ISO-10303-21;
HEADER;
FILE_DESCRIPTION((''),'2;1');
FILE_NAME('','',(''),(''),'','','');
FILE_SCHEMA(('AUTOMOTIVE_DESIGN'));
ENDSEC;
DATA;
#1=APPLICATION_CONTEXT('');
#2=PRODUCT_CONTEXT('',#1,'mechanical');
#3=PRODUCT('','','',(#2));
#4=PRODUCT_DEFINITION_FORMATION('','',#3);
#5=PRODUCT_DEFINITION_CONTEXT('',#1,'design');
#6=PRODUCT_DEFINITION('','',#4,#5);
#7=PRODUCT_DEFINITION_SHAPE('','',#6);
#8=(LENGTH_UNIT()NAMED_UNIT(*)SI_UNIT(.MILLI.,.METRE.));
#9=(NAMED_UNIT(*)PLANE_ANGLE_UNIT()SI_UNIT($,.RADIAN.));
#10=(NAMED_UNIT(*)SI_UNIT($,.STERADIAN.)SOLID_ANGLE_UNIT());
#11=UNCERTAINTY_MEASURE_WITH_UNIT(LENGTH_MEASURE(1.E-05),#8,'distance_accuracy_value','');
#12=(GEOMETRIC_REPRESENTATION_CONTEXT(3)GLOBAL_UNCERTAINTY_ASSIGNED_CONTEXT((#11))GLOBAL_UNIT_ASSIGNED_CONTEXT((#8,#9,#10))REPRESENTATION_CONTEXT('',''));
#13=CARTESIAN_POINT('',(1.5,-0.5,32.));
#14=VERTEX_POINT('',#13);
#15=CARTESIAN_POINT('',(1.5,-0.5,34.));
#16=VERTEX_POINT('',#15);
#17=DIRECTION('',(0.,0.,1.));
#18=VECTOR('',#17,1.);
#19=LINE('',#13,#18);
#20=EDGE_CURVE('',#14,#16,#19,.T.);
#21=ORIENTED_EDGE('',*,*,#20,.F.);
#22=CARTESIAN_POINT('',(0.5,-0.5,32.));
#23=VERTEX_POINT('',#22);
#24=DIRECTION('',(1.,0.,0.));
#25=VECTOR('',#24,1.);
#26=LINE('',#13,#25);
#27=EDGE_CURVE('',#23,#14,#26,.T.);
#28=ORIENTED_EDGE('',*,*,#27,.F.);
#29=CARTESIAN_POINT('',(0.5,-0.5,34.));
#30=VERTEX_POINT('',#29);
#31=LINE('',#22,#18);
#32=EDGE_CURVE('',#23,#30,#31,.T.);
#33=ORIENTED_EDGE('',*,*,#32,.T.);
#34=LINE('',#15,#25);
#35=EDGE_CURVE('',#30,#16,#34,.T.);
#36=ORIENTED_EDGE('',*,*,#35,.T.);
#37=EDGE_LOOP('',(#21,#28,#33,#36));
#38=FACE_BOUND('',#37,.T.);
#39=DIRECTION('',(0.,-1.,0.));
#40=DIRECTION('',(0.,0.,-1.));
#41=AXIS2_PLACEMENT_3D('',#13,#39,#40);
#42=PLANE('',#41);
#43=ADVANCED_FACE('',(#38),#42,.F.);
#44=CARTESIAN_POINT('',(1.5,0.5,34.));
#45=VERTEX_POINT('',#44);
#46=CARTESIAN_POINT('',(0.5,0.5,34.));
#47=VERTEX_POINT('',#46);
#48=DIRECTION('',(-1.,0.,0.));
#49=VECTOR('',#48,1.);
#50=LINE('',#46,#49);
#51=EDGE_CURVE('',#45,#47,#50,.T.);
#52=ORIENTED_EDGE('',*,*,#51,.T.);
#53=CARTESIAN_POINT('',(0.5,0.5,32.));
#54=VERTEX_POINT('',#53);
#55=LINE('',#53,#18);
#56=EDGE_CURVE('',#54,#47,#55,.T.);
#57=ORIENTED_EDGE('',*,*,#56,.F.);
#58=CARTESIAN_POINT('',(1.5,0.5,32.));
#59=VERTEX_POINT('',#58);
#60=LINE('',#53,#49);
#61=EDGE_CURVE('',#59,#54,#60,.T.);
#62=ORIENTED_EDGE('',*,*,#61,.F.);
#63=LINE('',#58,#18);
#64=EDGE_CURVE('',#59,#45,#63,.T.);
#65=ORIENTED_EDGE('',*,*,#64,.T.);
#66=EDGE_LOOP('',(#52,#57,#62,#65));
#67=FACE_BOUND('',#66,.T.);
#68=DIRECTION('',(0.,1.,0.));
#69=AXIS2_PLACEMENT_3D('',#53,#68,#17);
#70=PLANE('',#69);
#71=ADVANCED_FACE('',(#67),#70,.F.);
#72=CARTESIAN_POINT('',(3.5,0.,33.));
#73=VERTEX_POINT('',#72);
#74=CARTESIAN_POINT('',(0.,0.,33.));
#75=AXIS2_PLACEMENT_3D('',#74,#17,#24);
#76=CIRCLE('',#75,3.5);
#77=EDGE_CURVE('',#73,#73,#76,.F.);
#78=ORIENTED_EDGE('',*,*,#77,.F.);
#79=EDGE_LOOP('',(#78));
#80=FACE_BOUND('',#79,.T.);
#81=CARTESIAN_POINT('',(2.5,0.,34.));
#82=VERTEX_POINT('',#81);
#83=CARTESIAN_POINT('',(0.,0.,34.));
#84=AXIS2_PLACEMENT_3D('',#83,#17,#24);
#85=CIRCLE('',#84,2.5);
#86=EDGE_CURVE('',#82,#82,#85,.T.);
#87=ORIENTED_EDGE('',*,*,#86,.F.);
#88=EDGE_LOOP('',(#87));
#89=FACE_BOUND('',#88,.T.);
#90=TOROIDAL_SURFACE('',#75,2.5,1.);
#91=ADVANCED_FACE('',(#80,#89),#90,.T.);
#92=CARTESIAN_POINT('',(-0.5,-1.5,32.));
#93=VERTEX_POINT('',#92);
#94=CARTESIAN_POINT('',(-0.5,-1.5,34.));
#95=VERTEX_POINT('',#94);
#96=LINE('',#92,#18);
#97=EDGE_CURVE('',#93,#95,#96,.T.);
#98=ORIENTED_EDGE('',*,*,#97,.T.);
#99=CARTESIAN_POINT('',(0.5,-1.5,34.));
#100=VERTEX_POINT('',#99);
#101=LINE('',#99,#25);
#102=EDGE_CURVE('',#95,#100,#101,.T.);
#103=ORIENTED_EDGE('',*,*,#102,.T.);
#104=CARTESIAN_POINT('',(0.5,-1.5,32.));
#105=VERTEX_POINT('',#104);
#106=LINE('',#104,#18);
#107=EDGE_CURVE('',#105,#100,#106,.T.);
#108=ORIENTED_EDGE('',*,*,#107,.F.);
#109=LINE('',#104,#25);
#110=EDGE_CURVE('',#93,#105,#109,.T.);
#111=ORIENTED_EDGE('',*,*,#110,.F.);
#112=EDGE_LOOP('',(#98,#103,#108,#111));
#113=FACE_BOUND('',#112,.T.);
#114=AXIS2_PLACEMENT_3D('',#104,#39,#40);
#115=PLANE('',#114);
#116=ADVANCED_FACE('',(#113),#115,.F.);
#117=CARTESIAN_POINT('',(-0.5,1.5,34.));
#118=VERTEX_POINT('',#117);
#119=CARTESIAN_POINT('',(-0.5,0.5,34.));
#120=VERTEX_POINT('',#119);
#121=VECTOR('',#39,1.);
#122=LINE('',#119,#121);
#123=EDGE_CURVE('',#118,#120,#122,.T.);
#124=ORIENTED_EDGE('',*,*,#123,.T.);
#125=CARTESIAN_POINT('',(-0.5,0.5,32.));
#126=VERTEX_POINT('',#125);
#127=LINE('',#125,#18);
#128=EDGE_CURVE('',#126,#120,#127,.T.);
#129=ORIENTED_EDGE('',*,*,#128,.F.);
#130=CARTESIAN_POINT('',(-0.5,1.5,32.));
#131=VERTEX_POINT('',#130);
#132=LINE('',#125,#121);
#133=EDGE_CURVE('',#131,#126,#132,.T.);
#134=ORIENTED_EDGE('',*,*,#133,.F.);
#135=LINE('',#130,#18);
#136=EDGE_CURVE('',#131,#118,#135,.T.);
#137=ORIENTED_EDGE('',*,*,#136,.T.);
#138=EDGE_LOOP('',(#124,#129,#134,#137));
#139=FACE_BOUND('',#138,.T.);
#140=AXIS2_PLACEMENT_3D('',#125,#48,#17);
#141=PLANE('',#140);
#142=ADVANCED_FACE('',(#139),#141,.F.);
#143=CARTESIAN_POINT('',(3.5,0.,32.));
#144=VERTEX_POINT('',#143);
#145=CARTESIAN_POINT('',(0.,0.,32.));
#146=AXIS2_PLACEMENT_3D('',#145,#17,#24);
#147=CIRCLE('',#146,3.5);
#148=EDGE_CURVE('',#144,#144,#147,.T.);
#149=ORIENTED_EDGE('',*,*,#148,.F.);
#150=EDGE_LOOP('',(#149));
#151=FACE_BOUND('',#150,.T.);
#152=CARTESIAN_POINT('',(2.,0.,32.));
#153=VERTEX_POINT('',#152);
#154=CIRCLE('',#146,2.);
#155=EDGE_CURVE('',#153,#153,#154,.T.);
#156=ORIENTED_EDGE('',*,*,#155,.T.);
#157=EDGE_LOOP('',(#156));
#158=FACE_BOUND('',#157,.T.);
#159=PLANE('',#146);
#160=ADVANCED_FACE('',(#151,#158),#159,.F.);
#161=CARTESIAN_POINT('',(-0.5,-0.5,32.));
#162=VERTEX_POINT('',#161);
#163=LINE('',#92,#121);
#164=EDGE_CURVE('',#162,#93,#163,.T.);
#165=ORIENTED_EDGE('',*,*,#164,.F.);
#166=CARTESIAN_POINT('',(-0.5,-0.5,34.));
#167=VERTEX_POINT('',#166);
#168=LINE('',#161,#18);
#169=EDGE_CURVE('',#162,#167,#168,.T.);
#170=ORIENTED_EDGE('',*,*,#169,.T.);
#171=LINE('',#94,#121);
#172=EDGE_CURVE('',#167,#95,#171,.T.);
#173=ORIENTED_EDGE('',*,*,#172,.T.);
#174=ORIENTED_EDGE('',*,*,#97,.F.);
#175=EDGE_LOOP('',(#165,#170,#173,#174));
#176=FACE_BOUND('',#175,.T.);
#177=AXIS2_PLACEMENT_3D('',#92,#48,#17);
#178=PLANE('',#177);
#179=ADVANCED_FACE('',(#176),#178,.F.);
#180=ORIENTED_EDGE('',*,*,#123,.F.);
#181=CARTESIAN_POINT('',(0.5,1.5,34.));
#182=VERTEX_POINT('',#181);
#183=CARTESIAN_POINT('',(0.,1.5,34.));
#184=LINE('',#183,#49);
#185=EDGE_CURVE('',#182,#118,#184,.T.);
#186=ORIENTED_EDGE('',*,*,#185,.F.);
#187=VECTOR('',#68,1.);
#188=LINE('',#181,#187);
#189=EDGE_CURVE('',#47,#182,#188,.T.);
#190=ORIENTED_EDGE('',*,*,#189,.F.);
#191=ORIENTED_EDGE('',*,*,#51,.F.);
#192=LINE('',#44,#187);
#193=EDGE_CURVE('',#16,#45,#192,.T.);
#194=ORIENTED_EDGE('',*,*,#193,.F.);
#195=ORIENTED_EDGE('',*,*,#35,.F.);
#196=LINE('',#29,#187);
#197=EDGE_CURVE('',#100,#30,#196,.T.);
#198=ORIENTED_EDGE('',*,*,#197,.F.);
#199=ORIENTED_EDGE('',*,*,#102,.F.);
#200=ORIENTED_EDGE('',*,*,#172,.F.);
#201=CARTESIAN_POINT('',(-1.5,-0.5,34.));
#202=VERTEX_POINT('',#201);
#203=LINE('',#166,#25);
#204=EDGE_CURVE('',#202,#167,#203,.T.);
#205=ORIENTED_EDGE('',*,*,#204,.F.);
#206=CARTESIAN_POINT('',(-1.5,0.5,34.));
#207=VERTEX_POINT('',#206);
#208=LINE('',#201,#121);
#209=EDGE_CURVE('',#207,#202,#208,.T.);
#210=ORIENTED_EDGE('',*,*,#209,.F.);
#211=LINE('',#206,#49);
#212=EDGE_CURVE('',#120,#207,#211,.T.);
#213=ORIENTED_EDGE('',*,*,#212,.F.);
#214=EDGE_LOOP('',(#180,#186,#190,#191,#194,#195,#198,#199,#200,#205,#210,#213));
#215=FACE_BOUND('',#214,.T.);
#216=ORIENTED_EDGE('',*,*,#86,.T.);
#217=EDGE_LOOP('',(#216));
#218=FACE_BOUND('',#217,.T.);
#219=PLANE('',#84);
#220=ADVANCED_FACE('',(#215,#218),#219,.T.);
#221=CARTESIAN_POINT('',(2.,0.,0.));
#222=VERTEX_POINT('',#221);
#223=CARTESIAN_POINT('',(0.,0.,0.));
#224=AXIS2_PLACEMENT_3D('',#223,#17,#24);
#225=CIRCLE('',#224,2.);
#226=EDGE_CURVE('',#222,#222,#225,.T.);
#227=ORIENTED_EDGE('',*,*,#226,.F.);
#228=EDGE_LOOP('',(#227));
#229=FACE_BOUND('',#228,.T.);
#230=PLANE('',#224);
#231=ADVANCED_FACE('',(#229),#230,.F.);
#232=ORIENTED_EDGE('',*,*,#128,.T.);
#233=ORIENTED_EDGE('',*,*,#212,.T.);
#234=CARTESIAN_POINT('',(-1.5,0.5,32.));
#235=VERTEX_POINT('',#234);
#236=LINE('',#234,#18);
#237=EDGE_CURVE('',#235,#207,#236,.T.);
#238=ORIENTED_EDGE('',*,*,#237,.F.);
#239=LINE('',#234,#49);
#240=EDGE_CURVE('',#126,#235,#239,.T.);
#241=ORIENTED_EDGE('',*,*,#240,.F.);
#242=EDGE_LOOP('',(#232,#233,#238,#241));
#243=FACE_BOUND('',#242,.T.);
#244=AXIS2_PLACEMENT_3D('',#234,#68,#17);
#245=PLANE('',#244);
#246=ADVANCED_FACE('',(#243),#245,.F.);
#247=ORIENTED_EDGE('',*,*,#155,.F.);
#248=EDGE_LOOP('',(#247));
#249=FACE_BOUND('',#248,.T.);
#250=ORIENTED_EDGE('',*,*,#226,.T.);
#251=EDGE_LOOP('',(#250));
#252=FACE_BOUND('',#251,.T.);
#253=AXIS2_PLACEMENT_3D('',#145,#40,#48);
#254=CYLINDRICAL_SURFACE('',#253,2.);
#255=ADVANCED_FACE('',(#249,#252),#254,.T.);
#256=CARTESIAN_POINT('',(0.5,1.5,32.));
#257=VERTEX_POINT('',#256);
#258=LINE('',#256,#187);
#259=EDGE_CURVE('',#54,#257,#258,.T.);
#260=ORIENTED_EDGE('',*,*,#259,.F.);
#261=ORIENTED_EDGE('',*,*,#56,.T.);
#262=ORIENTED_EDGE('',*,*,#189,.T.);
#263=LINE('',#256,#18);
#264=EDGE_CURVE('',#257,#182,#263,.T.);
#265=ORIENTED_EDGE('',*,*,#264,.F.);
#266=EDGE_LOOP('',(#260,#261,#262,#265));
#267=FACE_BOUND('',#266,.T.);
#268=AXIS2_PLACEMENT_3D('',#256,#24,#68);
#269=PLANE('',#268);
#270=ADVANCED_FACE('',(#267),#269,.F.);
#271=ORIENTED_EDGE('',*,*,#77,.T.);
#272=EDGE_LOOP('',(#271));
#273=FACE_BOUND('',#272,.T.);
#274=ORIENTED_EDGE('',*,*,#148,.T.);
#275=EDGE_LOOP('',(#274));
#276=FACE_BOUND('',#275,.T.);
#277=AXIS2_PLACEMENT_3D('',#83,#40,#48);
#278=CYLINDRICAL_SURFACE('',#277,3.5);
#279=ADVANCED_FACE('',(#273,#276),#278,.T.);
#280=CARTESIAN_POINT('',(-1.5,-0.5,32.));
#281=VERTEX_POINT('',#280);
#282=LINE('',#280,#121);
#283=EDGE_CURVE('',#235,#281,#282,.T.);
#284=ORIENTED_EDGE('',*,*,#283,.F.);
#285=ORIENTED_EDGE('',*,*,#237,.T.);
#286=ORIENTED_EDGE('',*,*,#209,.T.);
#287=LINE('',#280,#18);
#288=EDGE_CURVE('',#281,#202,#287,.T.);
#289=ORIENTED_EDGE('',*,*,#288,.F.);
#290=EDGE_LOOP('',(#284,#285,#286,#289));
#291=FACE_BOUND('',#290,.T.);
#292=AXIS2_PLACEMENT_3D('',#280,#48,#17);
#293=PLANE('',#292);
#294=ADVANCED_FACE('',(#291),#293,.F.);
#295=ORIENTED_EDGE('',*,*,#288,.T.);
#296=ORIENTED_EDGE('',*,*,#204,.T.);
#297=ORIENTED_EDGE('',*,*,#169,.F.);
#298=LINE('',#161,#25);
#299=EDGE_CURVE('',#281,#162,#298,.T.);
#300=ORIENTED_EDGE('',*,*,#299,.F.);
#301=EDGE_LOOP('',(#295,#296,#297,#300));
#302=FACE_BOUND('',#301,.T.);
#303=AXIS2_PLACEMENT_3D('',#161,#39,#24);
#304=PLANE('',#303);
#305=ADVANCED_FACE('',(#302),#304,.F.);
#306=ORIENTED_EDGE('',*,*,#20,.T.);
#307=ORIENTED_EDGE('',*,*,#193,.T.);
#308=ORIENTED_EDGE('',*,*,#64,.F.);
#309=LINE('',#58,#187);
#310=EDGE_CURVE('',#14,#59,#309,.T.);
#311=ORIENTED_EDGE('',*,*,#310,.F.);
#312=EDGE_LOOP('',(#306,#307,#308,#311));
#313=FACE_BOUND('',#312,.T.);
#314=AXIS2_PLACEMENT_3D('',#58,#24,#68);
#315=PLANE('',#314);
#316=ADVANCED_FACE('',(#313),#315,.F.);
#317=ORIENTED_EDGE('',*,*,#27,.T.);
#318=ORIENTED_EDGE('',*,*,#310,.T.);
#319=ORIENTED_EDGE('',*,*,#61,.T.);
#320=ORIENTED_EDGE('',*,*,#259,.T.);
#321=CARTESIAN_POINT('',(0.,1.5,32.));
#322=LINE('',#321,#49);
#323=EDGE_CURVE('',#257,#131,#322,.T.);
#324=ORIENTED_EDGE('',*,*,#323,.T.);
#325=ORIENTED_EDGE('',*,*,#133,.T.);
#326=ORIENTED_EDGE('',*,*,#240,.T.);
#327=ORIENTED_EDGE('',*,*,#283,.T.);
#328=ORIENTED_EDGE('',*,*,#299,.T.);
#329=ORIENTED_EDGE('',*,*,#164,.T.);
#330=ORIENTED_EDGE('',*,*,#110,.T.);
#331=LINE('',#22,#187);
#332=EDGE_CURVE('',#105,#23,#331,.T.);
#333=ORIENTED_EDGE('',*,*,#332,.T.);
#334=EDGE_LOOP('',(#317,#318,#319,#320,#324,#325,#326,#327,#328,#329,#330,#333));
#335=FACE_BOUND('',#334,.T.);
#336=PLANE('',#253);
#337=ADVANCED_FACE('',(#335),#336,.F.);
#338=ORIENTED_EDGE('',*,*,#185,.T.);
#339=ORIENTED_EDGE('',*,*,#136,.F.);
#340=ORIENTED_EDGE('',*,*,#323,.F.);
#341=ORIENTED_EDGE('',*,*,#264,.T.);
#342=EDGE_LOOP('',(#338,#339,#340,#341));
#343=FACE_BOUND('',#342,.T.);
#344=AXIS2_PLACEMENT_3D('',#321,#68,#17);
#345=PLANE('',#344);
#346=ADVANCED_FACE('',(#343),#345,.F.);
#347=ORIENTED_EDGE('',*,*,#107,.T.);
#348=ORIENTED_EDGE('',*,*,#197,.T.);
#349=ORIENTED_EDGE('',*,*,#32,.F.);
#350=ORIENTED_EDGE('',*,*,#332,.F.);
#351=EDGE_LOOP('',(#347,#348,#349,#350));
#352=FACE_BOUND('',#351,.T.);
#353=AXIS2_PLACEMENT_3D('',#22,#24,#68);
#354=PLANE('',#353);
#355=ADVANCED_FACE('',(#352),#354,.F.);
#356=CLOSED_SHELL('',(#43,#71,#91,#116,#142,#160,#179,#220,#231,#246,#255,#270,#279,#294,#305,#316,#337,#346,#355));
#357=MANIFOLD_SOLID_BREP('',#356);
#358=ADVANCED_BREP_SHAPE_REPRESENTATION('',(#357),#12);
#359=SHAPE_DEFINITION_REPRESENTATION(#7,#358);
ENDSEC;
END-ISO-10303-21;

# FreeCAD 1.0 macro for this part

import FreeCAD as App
import Part
import Sketcher
Q = App.Units.Quantity


def edges_at(feature, points):
    """Names of the edges that pass closest to the given points."""
    edges = feature.Shape.Edges
    near = lambda p: min(range(len(edges)), key=lambda i: edges[i].distToShape(Part.Vertex(*p))[0])
    return sorted({f"Edge{near(p) + 1}" for p in points})


def add_polygon(sketch, points):
    """Adds a closed chain of lines whose ends are joined by coincident constraints."""
    first, n = sketch.GeometryCount, len(points)
    for a, b in zip(points, points[1:] + points[:1]):
        sketch.addGeometry(Part.LineSegment(App.Vector(*a, 0), App.Vector(*b, 0)), False)
    for i in range(n):
        sketch.addConstraint(Sketcher.Constraint("Coincident", first + i, 2, first + (i + 1) % n, 1))

doc = App.newDocument("Part")
body = doc.addObject("PartDesign::Body", "Body")

# Sketch on XY plane
sketch1 = body.newObject("Sketcher::SketchObject", "Sketch")
sketch1.AttachmentSupport = (doc.getObject("XY_Plane"), [""])
sketch1.MapMode = "FlatFace"
sketch1.addGeometry(Part.Circle(App.Vector(0, 0, 0), App.Vector(0, 0, 1), 2), False)
sketch1.addConstraint([
    Sketcher.Constraint("Coincident", 0, 3, -1, 1),
    Sketcher.Constraint("Diameter", 0, Q("4 mm")),
])
pad1 = body.newObject("PartDesign::Pad", "Pad")
pad1.Profile = sketch1
pad1.Length = 32

# Sketch on XY plane
sketch2 = body.newObject("Sketcher::SketchObject", "Sketch001")
sketch2.AttachmentSupport = (doc.getObject("XY_Plane"), [""])
sketch2.MapMode = "FlatFace"
sketch2.AttachmentOffset = App.Placement(App.Vector(0, 0, 32), App.Rotation())
sketch2.addGeometry(Part.Circle(App.Vector(0, 0, 0), App.Vector(0, 0, 1), 3.5), False)
sketch2.addConstraint([
    Sketcher.Constraint("Coincident", 0, 3, -1, 1),
    Sketcher.Constraint("Diameter", 0, Q("7 mm")),
])
pad2 = body.newObject("PartDesign::Pad", "Pad001")
pad2.Profile = sketch2
pad2.Length = 2
doc.recompute()

fillet = body.newObject("PartDesign::Fillet", "Fillet")
fillet.Base = (pad2, edges_at(pad2, [(-3.5, 0, 34)]))
fillet.Radius = 1

# Sketch on XY plane
sketch3 = body.newObject("Sketcher::SketchObject", "Sketch002")
sketch3.AttachmentSupport = (doc.getObject("XY_Plane"), [""])
sketch3.MapMode = "FlatFace"
sketch3.AttachmentOffset = App.Placement(App.Vector(0, 0, 34), App.Rotation())
add_polygon(sketch3, [(0.5, 1.5), (-0.5, 1.5), (-0.5, 0.5), (-1.5, 0.5), (-1.5, -0.5), (-0.5, -0.5), (-0.5, -1.5), (0.5, -1.5), (0.5, -0.5), (1.5, -0.5), (1.5, 0.5), (0.5, 0.5)])  # lines 0-11
sketch3.addConstraint([
    Sketcher.Constraint("Horizontal", 0),
    Sketcher.Constraint("Vertical", 1),
    Sketcher.Constraint("Horizontal", 2),
    Sketcher.Constraint("Vertical", 3),
    Sketcher.Constraint("Horizontal", 4),
    Sketcher.Constraint("Vertical", 5),
    Sketcher.Constraint("Horizontal", 6),
    Sketcher.Constraint("Vertical", 7),
    Sketcher.Constraint("Horizontal", 8),
    Sketcher.Constraint("Vertical", 9),
    Sketcher.Constraint("Horizontal", 10),
    Sketcher.Constraint("Vertical", 11),
    Sketcher.Constraint("Symmetric", 0, 2, 6, 2, -1, 1),
    Sketcher.Constraint("Symmetric", 2, 2, 8, 2, -1, 1),
    Sketcher.Constraint("Symmetric", 4, 2, 10, 2, -1, 1),
    Sketcher.Constraint("Symmetric", 4, 2, 7, 2, -2),
    Sketcher.Constraint("Equal", 0, 2),
    Sketcher.Constraint("Equal", 10, 1),
    Sketcher.Constraint("Equal", 1, 3),
    Sketcher.Constraint("DistanceX", 0, 2, 0, 1, Q("1 mm")),
])
pocket1 = body.newObject("PartDesign::Pocket", "Pocket")
pocket1.Profile = sketch3
pocket1.Length = 2

doc.recompute()
